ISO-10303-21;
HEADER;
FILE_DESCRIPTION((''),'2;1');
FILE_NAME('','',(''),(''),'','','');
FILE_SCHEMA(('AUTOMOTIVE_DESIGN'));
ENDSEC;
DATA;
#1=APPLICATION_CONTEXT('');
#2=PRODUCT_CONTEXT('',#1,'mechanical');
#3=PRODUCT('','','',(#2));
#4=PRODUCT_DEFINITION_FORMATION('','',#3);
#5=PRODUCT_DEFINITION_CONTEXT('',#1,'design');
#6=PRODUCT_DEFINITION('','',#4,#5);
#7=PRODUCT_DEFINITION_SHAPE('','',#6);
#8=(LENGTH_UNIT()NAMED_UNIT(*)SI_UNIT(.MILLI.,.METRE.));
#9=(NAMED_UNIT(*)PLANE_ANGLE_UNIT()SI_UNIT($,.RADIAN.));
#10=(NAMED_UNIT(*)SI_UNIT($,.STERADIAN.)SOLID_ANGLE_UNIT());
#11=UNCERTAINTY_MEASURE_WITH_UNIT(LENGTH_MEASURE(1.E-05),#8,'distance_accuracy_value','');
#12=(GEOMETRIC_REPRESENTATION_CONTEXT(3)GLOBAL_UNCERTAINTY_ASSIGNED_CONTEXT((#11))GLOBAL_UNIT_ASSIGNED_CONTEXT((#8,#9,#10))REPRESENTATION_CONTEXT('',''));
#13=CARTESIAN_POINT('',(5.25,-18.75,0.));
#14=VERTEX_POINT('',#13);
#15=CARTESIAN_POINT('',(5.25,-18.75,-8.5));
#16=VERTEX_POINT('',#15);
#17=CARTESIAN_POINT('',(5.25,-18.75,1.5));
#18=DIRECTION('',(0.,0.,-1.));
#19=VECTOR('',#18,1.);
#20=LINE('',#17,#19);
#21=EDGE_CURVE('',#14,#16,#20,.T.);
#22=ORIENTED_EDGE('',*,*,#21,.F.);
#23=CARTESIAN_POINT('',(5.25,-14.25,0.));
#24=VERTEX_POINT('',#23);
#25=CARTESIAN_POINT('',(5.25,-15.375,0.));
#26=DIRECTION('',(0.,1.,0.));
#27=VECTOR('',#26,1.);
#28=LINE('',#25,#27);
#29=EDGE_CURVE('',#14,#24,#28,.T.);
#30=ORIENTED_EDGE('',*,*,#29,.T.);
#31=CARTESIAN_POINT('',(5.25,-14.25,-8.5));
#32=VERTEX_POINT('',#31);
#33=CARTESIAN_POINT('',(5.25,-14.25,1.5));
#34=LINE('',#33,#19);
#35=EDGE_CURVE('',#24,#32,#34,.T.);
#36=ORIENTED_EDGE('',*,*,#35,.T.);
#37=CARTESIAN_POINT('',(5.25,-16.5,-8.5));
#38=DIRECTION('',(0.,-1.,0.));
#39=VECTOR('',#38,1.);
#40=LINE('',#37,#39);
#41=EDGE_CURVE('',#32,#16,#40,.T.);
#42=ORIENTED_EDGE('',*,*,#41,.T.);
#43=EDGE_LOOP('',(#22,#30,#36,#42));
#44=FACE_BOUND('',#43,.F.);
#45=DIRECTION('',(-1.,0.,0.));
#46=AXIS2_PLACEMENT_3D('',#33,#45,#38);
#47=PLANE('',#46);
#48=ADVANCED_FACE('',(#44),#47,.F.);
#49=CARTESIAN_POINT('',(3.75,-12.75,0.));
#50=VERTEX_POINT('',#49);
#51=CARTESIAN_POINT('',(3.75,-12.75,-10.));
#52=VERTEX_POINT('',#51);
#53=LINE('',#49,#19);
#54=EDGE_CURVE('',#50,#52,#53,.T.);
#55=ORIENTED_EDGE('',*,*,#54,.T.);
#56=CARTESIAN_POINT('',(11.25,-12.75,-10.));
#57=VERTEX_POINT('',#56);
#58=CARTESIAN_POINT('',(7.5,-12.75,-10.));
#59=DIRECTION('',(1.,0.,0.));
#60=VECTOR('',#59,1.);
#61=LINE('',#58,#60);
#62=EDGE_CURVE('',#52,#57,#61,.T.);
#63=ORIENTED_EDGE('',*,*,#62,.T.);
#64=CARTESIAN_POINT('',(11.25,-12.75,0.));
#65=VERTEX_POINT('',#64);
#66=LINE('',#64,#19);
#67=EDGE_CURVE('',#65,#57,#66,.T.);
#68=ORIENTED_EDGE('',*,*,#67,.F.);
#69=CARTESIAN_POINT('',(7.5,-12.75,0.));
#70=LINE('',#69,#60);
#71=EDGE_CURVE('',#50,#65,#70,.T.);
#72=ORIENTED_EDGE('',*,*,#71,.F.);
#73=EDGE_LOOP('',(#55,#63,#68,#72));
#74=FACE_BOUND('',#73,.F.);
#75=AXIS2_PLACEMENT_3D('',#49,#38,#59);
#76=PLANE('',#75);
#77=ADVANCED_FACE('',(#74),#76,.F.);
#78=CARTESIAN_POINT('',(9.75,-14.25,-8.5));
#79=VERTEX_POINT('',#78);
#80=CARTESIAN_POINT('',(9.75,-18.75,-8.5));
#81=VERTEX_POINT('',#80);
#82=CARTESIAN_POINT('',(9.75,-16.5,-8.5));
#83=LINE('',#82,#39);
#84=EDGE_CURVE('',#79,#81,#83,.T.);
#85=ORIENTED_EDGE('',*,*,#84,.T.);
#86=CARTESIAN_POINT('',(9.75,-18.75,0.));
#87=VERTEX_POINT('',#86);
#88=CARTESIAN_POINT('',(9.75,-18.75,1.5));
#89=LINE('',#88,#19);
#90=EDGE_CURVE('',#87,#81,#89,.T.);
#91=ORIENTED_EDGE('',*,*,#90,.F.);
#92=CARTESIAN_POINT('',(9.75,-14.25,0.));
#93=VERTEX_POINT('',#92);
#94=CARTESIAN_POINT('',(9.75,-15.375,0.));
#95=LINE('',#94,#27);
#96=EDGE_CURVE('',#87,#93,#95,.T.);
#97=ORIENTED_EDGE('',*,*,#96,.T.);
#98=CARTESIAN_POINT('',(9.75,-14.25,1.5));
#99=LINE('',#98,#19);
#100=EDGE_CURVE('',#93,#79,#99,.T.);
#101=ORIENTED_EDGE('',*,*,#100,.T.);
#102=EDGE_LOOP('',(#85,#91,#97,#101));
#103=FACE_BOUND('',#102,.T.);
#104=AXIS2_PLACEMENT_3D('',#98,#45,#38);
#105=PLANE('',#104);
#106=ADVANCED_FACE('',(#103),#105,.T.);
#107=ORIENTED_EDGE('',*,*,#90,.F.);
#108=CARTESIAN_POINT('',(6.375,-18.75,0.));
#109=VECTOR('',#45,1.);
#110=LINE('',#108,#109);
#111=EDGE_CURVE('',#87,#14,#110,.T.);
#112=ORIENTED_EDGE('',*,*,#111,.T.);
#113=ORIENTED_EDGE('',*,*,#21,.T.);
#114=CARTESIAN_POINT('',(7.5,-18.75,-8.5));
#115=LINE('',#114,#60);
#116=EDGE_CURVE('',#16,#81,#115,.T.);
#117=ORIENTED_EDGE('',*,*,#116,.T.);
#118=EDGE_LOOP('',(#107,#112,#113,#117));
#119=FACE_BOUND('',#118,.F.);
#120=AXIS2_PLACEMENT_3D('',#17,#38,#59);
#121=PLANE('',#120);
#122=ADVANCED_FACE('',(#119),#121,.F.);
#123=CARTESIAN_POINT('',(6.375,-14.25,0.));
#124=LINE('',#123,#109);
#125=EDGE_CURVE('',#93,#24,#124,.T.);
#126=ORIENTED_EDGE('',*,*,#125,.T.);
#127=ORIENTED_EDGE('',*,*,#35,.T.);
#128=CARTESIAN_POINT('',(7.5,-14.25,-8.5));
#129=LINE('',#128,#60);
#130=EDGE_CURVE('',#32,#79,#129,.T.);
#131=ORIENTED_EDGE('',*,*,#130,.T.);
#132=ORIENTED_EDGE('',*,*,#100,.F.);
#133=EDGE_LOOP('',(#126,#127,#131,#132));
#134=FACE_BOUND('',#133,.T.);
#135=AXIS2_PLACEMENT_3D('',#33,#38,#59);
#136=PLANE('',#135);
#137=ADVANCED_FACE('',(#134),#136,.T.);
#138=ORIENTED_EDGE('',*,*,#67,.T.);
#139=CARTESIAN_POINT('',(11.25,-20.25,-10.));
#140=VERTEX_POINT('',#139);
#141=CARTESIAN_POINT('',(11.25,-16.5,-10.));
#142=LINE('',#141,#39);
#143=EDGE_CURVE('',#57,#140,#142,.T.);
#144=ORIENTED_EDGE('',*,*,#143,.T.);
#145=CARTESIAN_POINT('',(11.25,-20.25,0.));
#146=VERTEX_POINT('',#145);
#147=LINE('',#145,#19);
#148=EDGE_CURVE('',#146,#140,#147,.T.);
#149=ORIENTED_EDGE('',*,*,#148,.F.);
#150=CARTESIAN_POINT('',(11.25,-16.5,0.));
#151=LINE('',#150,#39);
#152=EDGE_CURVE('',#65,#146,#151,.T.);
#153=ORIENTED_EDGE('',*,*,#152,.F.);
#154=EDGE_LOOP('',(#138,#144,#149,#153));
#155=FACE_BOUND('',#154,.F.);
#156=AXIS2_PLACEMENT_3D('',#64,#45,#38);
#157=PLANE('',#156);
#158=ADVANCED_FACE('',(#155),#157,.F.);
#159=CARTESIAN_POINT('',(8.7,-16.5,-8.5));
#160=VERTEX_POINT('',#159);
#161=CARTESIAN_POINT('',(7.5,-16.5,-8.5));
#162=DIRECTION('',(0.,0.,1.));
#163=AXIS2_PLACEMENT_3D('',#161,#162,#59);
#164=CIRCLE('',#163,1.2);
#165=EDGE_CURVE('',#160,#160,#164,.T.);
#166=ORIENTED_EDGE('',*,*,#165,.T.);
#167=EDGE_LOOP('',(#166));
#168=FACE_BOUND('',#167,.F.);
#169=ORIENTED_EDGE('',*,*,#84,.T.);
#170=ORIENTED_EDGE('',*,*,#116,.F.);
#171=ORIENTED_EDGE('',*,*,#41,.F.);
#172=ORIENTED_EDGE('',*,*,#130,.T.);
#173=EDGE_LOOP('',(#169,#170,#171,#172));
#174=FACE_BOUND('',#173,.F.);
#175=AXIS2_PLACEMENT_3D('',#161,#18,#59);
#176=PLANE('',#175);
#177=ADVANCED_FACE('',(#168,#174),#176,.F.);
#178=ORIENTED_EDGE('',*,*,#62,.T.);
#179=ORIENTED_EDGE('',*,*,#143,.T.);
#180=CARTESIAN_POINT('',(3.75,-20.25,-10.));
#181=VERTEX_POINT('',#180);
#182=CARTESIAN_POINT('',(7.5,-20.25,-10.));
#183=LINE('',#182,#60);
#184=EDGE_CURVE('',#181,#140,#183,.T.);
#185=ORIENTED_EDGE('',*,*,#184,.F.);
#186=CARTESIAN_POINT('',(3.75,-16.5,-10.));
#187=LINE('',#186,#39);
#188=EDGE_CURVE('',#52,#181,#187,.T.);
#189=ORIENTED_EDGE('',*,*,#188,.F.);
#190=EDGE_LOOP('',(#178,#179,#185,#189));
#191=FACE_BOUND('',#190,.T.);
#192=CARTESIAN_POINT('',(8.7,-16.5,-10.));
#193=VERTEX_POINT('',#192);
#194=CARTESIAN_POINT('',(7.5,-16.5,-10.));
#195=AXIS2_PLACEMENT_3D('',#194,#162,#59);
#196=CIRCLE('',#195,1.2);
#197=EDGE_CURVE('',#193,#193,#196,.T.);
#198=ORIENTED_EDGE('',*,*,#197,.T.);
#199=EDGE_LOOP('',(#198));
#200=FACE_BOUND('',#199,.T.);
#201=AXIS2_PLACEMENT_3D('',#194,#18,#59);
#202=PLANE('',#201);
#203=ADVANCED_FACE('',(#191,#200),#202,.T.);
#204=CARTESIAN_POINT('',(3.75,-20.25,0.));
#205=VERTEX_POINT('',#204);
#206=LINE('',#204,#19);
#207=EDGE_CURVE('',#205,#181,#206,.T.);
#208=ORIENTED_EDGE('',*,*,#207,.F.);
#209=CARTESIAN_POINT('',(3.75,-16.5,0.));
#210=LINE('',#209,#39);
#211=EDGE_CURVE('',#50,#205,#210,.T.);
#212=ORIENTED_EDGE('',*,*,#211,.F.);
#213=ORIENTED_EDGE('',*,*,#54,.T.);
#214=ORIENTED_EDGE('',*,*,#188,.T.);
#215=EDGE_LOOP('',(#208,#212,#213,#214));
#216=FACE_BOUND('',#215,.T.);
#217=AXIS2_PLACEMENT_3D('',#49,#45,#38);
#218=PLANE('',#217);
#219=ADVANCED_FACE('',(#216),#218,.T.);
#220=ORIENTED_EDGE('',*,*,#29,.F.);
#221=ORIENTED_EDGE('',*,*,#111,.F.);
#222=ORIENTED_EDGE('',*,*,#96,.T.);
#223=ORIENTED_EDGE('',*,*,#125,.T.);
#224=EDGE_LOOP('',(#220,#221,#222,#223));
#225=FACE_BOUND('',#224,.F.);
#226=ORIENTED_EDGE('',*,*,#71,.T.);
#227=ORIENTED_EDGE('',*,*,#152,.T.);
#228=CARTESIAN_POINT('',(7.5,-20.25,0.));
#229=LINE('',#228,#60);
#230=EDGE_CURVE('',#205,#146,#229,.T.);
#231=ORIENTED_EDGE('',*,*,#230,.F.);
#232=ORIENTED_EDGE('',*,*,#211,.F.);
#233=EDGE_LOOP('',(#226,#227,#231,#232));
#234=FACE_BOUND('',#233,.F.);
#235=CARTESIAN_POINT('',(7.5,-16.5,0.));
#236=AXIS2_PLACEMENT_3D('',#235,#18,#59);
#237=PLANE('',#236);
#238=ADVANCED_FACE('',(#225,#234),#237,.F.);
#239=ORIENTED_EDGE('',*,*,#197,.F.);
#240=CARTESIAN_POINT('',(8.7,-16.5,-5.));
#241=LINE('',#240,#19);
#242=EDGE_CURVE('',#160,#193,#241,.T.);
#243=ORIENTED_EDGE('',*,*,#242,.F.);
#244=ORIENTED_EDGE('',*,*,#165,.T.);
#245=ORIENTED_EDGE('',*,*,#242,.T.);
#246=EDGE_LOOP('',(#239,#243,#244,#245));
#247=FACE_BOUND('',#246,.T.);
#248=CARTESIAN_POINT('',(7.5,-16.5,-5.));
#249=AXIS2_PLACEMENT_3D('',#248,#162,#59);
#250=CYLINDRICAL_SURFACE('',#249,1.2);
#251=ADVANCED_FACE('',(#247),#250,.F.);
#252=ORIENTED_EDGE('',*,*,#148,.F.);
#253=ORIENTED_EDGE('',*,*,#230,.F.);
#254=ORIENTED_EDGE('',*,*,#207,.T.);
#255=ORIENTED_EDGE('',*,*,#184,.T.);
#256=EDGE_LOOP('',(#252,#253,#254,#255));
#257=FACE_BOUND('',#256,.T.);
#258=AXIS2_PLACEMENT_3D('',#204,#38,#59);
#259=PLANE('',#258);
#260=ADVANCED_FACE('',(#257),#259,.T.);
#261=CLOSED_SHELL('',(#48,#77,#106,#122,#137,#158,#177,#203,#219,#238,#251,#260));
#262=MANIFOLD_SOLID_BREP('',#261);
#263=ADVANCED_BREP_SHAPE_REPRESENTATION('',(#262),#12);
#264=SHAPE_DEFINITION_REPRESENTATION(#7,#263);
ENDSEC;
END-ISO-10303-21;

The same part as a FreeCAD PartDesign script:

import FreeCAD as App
import Part
import Sketcher


def add_polygon(sketch, points):
    """Adds a closed chain of lines whose ends are joined by coincident constraints."""
    first, n = sketch.GeometryCount, len(points)
    for a, b in zip(points, points[1:] + points[:1]):
        sketch.addGeometry(Part.LineSegment(App.Vector(*a, 0), App.Vector(*b, 0)), False)
    for i in range(n):
        sketch.addConstraint(Sketcher.Constraint("Coincident", first + i, 2, first + (i + 1) % n, 1))

doc = App.newDocument("Part")
body = doc.addObject("PartDesign::Body", "Body")

# Sketch on XY plane
sketch1 = body.newObject("Sketcher::SketchObject", "Sketch")
sketch1.AttachmentSupport = (doc.getObject("XY_Plane"), [""])
sketch1.MapMode = "FlatFace"
sketch1.AttachmentOffset = App.Placement(App.Vector(0, 0, 105), App.Rotation())
sketch1.addGeometry(Part.Circle(App.Vector(7.5, 16.5, 0), App.Vector(0, 0, 1), 1.2), False)
sketch1.addConstraint(Sketcher.Constraint("Diameter", 0, 2.4))
sketch1.addConstraint(Sketcher.Constraint("DistanceX", -1, 1, 0, 3, 7.5))
sketch1.addConstraint(Sketcher.Constraint("DistanceY", -1, 1, 0, 3, 16.5))
pad1 = body.newObject("PartDesign::Pad", "Pad")
pad1.Profile = sketch1
pad1.Length = 10
body2 = doc.addObject("PartDesign::Body", "Body001")

# Sketch on XY plane
sketch2 = body2.newObject("Sketcher::SketchObject", "Sketch001")
sketch2.AttachmentSupport = (doc.getObject("XY_Plane001"), [""])
sketch2.MapMode = "FlatFace"
sketch2.AttachmentOffset = App.Placement(App.Vector(0, 0, 98.5), App.Rotation())
add_polygon(sketch2, [(5.25, 18.75), (5.25, 14.25), (9.75, 14.25), (9.75, 18.75)])  # lines 0-3
sketch2.addConstraint(Sketcher.Constraint("Vertical", 0))
sketch2.addConstraint(Sketcher.Constraint("Horizontal", 1))
sketch2.addConstraint(Sketcher.Constraint("Vertical", 2))
sketch2.addConstraint(Sketcher.Constraint("Horizontal", 3))
sketch2.addConstraint(Sketcher.Constraint("Equal", 3, 0))
sketch2.addConstraint(Sketcher.Constraint("DistanceX", 1, 1, 1, 2, 4.5))
sketch2.addConstraint(Sketcher.Constraint("DistanceX", -1, 1, 0, 2, 5.25))
sketch2.addConstraint(Sketcher.Constraint("DistanceY", -1, 1, 0, 2, 14.25))
pad2 = body2.newObject("PartDesign::Pad", "Pad001")
pad2.Profile = sketch2
pad2.Length = 10
body3 = doc.addObject("PartDesign::Body", "Body002")

# Sketch on XY plane
sketch3 = body3.newObject("Sketcher::SketchObject", "Sketch002")
sketch3.AttachmentSupport = (doc.getObject("XY_Plane002"), [""])
sketch3.MapMode = "FlatFace"
sketch3.AttachmentOffset = App.Placement(App.Vector(0, 0, 100), App.Rotation())
add_polygon(sketch3, [(3.75, 20.25), (3.75, 12.75), (11.25, 12.75), (11.25, 20.25)])  # lines 0-3
sketch3.addConstraint(Sketcher.Constraint("Vertical", 0))
sketch3.addConstraint(Sketcher.Constraint("Horizontal", 1))
sketch3.addConstraint(Sketcher.Constraint("Vertical", 2))
sketch3.addConstraint(Sketcher.Constraint("Horizontal", 3))
sketch3.addConstraint(Sketcher.Constraint("Equal", 3, 0))
sketch3.addConstraint(Sketcher.Constraint("DistanceX", 1, 1, 1, 2, 7.5))
sketch3.addConstraint(Sketcher.Constraint("DistanceX", -1, 1, 0, 2, 3.75))
sketch3.addConstraint(Sketcher.Constraint("DistanceY", -1, 1, 0, 2, 12.75))
pad3 = body3.newObject("PartDesign::Pad", "Pad002")
pad3.Profile = sketch3
pad3.Length = 10
doc.recompute()

boolean = body3.newObject("PartDesign::Boolean", "Boolean")
boolean.Type = "Cut"
boolean.addObjects([body2])
doc.recompute()

boolean2 = body3.newObject("PartDesign::Boolean", "Boolean001")
boolean2.Type = "Cut"
boolean2.addObjects([body])
body4 = doc.addObject("PartDesign::Body", "Body003")
doc.recompute()

body3.Placement = App.Placement(App.Vector(0, 0, 100), App.Rotation(App.Vector(1, 0, 0), 180))
boolean3 = body4.newObject("PartDesign::Boolean", "Boolean002")
boolean3.Type = "Fuse"
boolean3.addObjects([body3])

doc.recompute()
